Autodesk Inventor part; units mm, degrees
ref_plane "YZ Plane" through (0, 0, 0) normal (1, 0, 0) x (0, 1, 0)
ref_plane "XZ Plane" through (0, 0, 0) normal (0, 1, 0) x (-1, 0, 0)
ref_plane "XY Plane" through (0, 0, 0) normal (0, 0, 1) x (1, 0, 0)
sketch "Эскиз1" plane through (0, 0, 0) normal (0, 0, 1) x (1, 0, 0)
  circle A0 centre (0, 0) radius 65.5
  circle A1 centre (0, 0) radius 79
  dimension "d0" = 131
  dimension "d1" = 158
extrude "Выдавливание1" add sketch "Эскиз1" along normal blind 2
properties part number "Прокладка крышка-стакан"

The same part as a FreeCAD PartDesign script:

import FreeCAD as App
import Part
import Sketcher

V = App.Vector

doc = App.newDocument("Part")
body = doc.addObject("PartDesign::Body", "Body")

sketch1 = doc.addObject("Sketcher::SketchObject", "Sketch")
body.addObject(sketch1)
sketch1.AttachmentSupport = (doc.XY_Plane, [""])
sketch1.MapMode = "FlatFace"
sketch1.addGeometry(Part.Circle(V(0, 0, 0), V(0, 0, 1), 79), False)
sketch1.addGeometry(Part.Circle(V(0, 0, 0), V(0, 0, 1), 65.5), False)
sketch1.addConstraint(Sketcher.Constraint("Coincident", 0, 3, -1, 1))
sketch1.addConstraint(Sketcher.Constraint("Coincident", 1, 3, -1, 1))
sketch1.addConstraint(Sketcher.Constraint("Diameter", 0, 158.0))
sketch1.addConstraint(Sketcher.Constraint("Diameter", 1, 131.0))
pad1 = doc.addObject("PartDesign::Pad", "Pad")
body.addObject(pad1)
pad1.Profile = sketch1
pad1.Length = 2

doc.recompute()
